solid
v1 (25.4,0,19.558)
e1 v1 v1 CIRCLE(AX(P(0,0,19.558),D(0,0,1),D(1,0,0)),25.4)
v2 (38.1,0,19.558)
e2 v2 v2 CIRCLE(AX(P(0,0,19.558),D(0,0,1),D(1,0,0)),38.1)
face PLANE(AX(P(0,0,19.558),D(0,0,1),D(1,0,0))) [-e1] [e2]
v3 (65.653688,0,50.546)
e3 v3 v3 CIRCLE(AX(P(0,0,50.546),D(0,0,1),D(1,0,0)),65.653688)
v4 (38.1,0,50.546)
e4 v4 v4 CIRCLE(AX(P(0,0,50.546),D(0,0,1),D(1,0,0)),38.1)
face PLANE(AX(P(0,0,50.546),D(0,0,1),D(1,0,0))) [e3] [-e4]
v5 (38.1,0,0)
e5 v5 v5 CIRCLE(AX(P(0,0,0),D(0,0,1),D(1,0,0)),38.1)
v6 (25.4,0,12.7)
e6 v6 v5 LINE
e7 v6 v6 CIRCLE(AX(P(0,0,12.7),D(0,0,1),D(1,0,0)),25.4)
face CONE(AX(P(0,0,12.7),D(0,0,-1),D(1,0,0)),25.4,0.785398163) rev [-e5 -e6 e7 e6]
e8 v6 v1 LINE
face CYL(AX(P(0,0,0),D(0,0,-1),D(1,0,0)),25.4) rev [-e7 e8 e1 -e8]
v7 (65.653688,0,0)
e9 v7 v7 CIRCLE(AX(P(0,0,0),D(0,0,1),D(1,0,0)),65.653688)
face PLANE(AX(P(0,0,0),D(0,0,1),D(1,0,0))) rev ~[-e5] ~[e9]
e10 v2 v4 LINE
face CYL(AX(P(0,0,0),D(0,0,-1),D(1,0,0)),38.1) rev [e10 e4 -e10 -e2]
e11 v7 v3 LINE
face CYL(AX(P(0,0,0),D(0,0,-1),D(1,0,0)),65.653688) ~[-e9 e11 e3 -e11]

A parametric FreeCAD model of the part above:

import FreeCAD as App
import Part
import Sketcher

V = App.Vector
Q = App.Units.Quantity


def edges_at(feature, points):
    """Names of the edges that pass closest to the given points."""
    edges = feature.Shape.Edges
    near = lambda p: min(range(len(edges)), key=lambda i: edges[i].distToShape(Part.Vertex(*p))[0])
    return sorted({f"Edge{near(p) + 1}" for p in points})

doc = App.newDocument("Part")
body = doc.addObject("PartDesign::Body", "Body")

sketch1 = body.newObject("Sketcher::SketchObject", "Sketch")
sketch1.AttachmentSupport = (doc.getObject("XY_Plane"), [""])
sketch1.MapMode = "FlatFace"
sketch1.addGeometry([
    Part.Circle(V(0, 0, 0), V(0, 0, 1), 66),
    Part.Circle(V(0, 0, 0), V(0, 0, 1), 38),
], False)
sketch1.addConstraint([
    Sketcher.Constraint("Coincident", 0, 3, -1, 1),
    Sketcher.Constraint("Coincident", 1, 3, -1, 1),
    Sketcher.Constraint("Diameter", 1, Q("3 in")),
    Sketcher.Constraint("Diameter", 0, 131.307376),
])
pad1 = body.newObject("PartDesign::Pad", "Pad")
pad1.Profile = sketch1
pad1.Length = Q("1.99 in")

sketch2 = body.newObject("Sketcher::SketchObject", "Sketch001")
sketch2.AttachmentSupport = (doc.getObject("XY_Plane"), [""])
sketch2.MapMode = "FlatFace"
sketch2.addGeometry([
    Part.Circle(V(0, 0, 0), V(0, 0, 1), 38),
    Part.Circle(V(0, 0, 0), V(0, 0, 1), 25),
], False)
sketch2.addConstraint([
    Sketcher.Constraint("Coincident", 0, 3, -1, 1),
    Sketcher.Constraint("Coincident", 1, 3, -1, 1),
    Sketcher.Constraint("Diameter", 0, Q("3 in")),
    Sketcher.Constraint("Diameter", 1, Q("2 in")),
])
pad2 = body.newObject("PartDesign::Pad", "Pad001")
pad2.Profile = sketch2
pad2.Length = Q("0.77 in")
doc.recompute()

chamfer = body.newObject("PartDesign::Chamfer", "Chamfer")
chamfer.Base = (pad2, edges_at(pad2, [(-25.4, 0, 0)]))
chamfer.Size = Q("0.5 in")

doc.recompute()
